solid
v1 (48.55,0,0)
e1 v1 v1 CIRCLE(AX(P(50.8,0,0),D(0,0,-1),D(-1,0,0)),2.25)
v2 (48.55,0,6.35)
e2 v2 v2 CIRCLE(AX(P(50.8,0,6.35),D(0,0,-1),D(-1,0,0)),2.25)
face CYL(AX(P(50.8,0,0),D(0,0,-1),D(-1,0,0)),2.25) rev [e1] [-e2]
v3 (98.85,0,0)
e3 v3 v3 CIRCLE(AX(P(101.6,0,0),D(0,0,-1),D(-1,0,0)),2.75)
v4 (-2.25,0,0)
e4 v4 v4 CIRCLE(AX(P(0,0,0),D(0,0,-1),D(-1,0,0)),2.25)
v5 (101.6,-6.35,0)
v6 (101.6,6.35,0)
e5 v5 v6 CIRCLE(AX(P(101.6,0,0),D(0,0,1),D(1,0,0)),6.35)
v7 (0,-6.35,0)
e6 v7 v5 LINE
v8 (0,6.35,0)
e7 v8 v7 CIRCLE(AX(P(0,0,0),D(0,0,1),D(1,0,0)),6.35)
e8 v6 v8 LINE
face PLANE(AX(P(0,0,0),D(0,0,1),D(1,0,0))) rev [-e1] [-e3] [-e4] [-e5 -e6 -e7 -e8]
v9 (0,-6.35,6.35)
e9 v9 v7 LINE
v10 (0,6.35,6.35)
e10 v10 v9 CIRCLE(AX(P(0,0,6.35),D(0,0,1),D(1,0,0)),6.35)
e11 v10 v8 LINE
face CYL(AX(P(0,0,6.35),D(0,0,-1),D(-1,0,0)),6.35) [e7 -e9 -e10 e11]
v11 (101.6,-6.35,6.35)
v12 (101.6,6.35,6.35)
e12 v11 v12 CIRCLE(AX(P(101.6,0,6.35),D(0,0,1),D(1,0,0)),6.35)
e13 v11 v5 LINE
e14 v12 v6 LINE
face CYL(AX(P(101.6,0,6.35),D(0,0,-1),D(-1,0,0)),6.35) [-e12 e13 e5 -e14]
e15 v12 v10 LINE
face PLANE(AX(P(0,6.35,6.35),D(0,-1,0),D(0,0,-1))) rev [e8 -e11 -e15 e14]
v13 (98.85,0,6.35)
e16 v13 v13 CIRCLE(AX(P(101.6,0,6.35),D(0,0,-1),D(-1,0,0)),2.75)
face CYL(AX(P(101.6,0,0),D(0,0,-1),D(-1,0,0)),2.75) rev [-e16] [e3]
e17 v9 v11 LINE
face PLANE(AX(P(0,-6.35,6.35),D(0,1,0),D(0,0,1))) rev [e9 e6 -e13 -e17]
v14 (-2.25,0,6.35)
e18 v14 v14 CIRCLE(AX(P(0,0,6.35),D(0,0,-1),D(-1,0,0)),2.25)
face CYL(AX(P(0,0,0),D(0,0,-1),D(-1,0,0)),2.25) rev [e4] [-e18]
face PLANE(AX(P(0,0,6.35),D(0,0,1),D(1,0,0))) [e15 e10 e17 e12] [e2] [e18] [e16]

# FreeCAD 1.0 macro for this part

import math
import FreeCAD as App
import Part
import Sketcher

V = App.Vector
Q = App.Units.Quantity

doc = App.newDocument("Part")
params = doc.addObject("Spreadsheet::Sheet", "Params")
for row, (alias, value) in enumerate([
    ("sketch1_width", "4 in"),
    ("sketch1_radius", "0.25 in"),
    ("pad1_length", "0.25 in"),
    ("hole_diameter", "5.5 mm"),
    ("hole2_diameter", "4.5 mm"),
], start=1):
    params.set(f"A{row}", alias)
    params.set(f"B{row}", "=" + value)
    params.setAlias(f"B{row}", alias)

body = doc.addObject("PartDesign::Body", "Body")

# Sketch on XY plane
sketch1 = doc.addObject("Sketcher::SketchObject", "Sketch")
body.addObject(sketch1)
sketch1.AttachmentSupport = (doc.XY_Plane, [""])
sketch1.MapMode = "FlatFace"
sketch1.addGeometry([
    Part.LineSegment(V(102, 6, 0), V(0, 6, 0)),
    Part.ArcOfCircle(Part.Circle(V(0, 0, 0), V(0, 0, 1), 6), math.radians(90), math.radians(270)),
    Part.LineSegment(V(0, -6, 0), V(102, -6, 0)),
    Part.ArcOfCircle(Part.Circle(V(102, 0, 0), V(0, 0, 1), 6), math.radians(-90), math.radians(90)),
], False)
sketch1.addConstraint([
    Sketcher.Constraint("Tangent", 0, 2, 1, 1),
    Sketcher.Constraint("Tangent", 1, 2, 2, 1),
    Sketcher.Constraint("Tangent", 2, 2, 3, 1),
    Sketcher.Constraint("Tangent", 3, 2, 0, 1),
    Sketcher.Constraint("Horizontal", 0),
    Sketcher.Constraint("Horizontal", 2),
    Sketcher.Constraint("Coincident", 1, 3, -1, 1),
    Sketcher.Constraint("DistanceX", 0, 2, 0, 1, Q("4 in")),
    Sketcher.Constraint("Radius", 1, Q("0.25 in")),
])
sketch1.setExpression("Constraints[7]", "Params.sketch1_width")
sketch1.setExpression("Constraints[8]", "Params.sketch1_radius")
pad1 = doc.addObject("PartDesign::Pad", "Pad")
body.addObject(pad1)
pad1.Profile = sketch1
pad1.setExpression("Length", "Params.pad1_length")

# Sketch on XY plane
sketch2 = doc.addObject("Sketcher::SketchObject", "Sketch001")
body.addObject(sketch2)
sketch2.AttachmentSupport = (doc.XY_Plane, [""])
sketch2.MapMode = "FlatFace"
sketch2.addGeometry(Part.Circle(V(101.6, 0, 0), V(0, 0, 1), 2.8), False)
sketch2.addConstraint([
    Sketcher.Constraint("PointOnObject", 0, 3, -1),
    Sketcher.Constraint("DistanceX", -1, 1, 0, 3, Q("4 in")),
    Sketcher.Constraint("Diameter", 0, 5.5),
])
doc.recompute()
hole = doc.addObject("PartDesign::Hole", "Hole")
body.addObject(hole)
hole.Profile = sketch2
hole.ThreadType = "None"
hole.setExpression("Diameter", "Params.hole_diameter")
hole.DepthType = "ThroughAll"
hole.Reversed = True

# Sketch on XY plane
sketch3 = doc.addObject("Sketcher::SketchObject", "Sketch002")
body.addObject(sketch3)
sketch3.AttachmentSupport = (doc.XY_Plane, [""])
sketch3.MapMode = "FlatFace"
sketch3.addGeometry([
    Part.Circle(V(50.8, 0, 0), V(0, 0, 1), 2.2),
    Part.Circle(V(0, 0, 0), V(0, 0, 1), 2.2),
], False)
sketch3.addConstraint([
    Sketcher.Constraint("Coincident", 1, 3, -1, 1),
    Sketcher.Constraint("Equal", 0, 1),
    Sketcher.Constraint("PointOnObject", 0, 3, -1),
    Sketcher.Constraint("DistanceX", -1, 1, 0, 3, Q("2 in")),
    Sketcher.Constraint("Diameter", 0, 4.5),
])
doc.recompute()
hole2 = doc.addObject("PartDesign::Hole", "Hole001")
body.addObject(hole2)
hole2.Profile = sketch3
hole2.ThreadType = "None"
hole2.setExpression("Diameter", "Params.hole2_diameter")
hole2.DepthType = "ThroughAll"
hole2.Reversed = True

doc.recompute()
